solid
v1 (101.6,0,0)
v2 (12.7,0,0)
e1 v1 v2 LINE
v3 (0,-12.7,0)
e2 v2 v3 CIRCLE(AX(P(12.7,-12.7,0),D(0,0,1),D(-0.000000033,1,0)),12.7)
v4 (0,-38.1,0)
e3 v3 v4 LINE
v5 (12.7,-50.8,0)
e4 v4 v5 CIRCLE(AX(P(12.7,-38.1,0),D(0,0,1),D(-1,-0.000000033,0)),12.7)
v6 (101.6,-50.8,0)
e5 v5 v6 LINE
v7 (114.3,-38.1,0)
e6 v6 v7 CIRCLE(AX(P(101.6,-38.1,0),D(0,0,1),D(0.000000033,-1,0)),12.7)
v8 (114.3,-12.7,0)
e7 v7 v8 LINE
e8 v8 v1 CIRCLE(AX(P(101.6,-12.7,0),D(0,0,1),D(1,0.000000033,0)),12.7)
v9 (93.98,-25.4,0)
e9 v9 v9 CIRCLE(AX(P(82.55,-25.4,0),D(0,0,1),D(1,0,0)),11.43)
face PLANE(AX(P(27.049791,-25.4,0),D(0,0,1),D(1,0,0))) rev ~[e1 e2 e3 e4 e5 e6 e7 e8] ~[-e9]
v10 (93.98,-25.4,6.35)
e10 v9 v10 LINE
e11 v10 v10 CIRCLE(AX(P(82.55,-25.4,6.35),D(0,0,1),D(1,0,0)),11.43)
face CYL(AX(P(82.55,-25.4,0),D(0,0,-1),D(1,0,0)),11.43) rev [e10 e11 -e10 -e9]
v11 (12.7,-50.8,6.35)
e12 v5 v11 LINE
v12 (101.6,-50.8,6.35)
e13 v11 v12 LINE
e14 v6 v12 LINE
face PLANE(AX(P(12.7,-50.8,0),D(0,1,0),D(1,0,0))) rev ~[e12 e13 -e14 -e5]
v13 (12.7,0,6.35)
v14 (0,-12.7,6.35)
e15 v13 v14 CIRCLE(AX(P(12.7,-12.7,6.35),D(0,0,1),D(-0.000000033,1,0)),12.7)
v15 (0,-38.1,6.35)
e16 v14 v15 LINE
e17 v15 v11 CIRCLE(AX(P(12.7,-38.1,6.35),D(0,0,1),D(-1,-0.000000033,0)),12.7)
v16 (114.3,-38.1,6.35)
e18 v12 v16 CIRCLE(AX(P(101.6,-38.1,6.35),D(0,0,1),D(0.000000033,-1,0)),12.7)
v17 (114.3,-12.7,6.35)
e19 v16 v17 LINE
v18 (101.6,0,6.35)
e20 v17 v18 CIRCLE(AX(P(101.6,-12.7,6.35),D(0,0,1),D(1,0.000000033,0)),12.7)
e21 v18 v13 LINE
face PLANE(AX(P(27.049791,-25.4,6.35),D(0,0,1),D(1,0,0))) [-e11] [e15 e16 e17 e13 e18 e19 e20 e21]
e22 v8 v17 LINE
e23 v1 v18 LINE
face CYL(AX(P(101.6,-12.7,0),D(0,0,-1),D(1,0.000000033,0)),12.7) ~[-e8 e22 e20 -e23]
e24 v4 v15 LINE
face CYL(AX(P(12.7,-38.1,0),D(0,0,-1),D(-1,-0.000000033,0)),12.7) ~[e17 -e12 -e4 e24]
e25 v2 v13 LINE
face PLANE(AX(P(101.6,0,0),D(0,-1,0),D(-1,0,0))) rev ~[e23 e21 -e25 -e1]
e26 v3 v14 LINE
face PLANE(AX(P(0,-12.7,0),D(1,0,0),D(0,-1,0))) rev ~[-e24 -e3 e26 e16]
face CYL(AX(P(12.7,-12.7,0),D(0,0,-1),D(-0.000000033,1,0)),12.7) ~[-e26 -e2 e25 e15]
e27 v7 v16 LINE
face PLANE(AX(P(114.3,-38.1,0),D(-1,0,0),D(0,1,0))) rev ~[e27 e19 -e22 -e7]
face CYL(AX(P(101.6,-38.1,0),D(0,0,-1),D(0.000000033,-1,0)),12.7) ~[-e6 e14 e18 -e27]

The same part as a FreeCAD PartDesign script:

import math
import FreeCAD as App
import Part
import Sketcher
from FreeCAD import Vector
Q = App.Units.Quantity

doc = App.newDocument("Part")
params = doc.addObject("Spreadsheet::Sheet", "Params")
for row, (alias, value) in enumerate([
    ("sketch1_diameter", "0.9 in"),
    ("sketch1_radius", "0.5 in"),
    ("sketch1_height", "1 in"),
    ("sketch1_width", "3.5 in"),
    ("pad1_length", "0.25 in"),
], start=1):
    params.set(f"A{row}", alias)
    params.set(f"B{row}", "=" + value)
    params.setAlias(f"B{row}", alias)

body = doc.addObject("PartDesign::Body", "Body")

# Sketch on XY plane
sketch1 = doc.addObject("Sketcher::SketchObject", "Sketch")
body.addObject(sketch1)
sketch1.AttachmentSupport = (doc.XY_Plane, [""])
sketch1.MapMode = "FlatFace"
sketch1.addGeometry([
    Part.ArcOfCircle(Part.Circle(Vector(13, -13, 0), Vector(0, 0, 1), 13), math.radians(90), math.radians(180)),  # 0
    Part.LineSegment(Vector(0, -13, 0), Vector(0, -38, 0)),  # 1
    Part.ArcOfCircle(Part.Circle(Vector(13, -38, 0), Vector(0, 0, 1), 13), math.radians(-180), math.radians(-90)),  # 2
    Part.LineSegment(Vector(13, -51, 0), Vector(102, -51, 0)),  # 3
    Part.ArcOfCircle(Part.Circle(Vector(102, -38, 0), Vector(0, 0, 1), 13), math.radians(-90), math.radians(0)),  # 4
    Part.LineSegment(Vector(114, -38, 0), Vector(114, -13, 0)),  # 5
    Part.ArcOfCircle(Part.Circle(Vector(102, -13, 0), Vector(0, 0, 1), 13), math.radians(0), math.radians(90)),  # 6
    Part.LineSegment(Vector(102, 0, 0), Vector(13, 0, 0)),  # 7
    Part.Circle(Vector(83, -25, 0), Vector(0, 0, 1), 11),  # 8
], False)
sketch1.addConstraint([
    Sketcher.Constraint("Tangent", 0, 2, 1, 1),
    Sketcher.Constraint("Tangent", 1, 2, 2, 1),
    Sketcher.Constraint("Tangent", 2, 2, 3, 1),
    Sketcher.Constraint("Tangent", 3, 2, 4, 1),
    Sketcher.Constraint("Tangent", 4, 2, 5, 1),
    Sketcher.Constraint("Tangent", 5, 2, 6, 1),
    Sketcher.Constraint("Tangent", 6, 2, 7, 1),
    Sketcher.Constraint("Tangent", 7, 2, 0, 1),
    Sketcher.Constraint("Vertical", 1),
    Sketcher.Constraint("Horizontal", 3),
    Sketcher.Constraint("Vertical", 5),
    Sketcher.Constraint("Horizontal", 7),
    Sketcher.Constraint("Equal", 0, 2),
    Sketcher.Constraint("Equal", 2, 4),
    Sketcher.Constraint("Equal", 4, 6),
    Sketcher.Constraint("PointOnObject", 0, 2, -2),
    Sketcher.Constraint("PointOnObject", 6, 2, -1),
    Sketcher.Constraint("Diameter", 8, Q("0.9 in")),
    Sketcher.Constraint("Radius", 0, Q("0.5 in")),
    Sketcher.Constraint("DistanceY", 1, 2, 1, 1, Q("1 in")),
    Sketcher.Constraint("DistanceX", 3, 1, 3, 2, Q("3.5 in")),
    Sketcher.Constraint("DistanceY", 8, 3, -1, 1, Q("1 in")),
    Sketcher.Constraint("DistanceX", -1, 1, 8, 3, Q("3.25 in")),
])
sketch1.setExpression("Constraints[17]", "Params.sketch1_diameter")
sketch1.setExpression("Constraints[18]", "Params.sketch1_radius")
sketch1.setExpression("Constraints[19]", "Params.sketch1_height")
sketch1.setExpression("Constraints[20]", "Params.sketch1_width")
pad1 = doc.addObject("PartDesign::Pad", "Pad")
body.addObject(pad1)
pad1.Profile = sketch1
pad1.setExpression("Length", "Params.pad1_length")

doc.recompute()
